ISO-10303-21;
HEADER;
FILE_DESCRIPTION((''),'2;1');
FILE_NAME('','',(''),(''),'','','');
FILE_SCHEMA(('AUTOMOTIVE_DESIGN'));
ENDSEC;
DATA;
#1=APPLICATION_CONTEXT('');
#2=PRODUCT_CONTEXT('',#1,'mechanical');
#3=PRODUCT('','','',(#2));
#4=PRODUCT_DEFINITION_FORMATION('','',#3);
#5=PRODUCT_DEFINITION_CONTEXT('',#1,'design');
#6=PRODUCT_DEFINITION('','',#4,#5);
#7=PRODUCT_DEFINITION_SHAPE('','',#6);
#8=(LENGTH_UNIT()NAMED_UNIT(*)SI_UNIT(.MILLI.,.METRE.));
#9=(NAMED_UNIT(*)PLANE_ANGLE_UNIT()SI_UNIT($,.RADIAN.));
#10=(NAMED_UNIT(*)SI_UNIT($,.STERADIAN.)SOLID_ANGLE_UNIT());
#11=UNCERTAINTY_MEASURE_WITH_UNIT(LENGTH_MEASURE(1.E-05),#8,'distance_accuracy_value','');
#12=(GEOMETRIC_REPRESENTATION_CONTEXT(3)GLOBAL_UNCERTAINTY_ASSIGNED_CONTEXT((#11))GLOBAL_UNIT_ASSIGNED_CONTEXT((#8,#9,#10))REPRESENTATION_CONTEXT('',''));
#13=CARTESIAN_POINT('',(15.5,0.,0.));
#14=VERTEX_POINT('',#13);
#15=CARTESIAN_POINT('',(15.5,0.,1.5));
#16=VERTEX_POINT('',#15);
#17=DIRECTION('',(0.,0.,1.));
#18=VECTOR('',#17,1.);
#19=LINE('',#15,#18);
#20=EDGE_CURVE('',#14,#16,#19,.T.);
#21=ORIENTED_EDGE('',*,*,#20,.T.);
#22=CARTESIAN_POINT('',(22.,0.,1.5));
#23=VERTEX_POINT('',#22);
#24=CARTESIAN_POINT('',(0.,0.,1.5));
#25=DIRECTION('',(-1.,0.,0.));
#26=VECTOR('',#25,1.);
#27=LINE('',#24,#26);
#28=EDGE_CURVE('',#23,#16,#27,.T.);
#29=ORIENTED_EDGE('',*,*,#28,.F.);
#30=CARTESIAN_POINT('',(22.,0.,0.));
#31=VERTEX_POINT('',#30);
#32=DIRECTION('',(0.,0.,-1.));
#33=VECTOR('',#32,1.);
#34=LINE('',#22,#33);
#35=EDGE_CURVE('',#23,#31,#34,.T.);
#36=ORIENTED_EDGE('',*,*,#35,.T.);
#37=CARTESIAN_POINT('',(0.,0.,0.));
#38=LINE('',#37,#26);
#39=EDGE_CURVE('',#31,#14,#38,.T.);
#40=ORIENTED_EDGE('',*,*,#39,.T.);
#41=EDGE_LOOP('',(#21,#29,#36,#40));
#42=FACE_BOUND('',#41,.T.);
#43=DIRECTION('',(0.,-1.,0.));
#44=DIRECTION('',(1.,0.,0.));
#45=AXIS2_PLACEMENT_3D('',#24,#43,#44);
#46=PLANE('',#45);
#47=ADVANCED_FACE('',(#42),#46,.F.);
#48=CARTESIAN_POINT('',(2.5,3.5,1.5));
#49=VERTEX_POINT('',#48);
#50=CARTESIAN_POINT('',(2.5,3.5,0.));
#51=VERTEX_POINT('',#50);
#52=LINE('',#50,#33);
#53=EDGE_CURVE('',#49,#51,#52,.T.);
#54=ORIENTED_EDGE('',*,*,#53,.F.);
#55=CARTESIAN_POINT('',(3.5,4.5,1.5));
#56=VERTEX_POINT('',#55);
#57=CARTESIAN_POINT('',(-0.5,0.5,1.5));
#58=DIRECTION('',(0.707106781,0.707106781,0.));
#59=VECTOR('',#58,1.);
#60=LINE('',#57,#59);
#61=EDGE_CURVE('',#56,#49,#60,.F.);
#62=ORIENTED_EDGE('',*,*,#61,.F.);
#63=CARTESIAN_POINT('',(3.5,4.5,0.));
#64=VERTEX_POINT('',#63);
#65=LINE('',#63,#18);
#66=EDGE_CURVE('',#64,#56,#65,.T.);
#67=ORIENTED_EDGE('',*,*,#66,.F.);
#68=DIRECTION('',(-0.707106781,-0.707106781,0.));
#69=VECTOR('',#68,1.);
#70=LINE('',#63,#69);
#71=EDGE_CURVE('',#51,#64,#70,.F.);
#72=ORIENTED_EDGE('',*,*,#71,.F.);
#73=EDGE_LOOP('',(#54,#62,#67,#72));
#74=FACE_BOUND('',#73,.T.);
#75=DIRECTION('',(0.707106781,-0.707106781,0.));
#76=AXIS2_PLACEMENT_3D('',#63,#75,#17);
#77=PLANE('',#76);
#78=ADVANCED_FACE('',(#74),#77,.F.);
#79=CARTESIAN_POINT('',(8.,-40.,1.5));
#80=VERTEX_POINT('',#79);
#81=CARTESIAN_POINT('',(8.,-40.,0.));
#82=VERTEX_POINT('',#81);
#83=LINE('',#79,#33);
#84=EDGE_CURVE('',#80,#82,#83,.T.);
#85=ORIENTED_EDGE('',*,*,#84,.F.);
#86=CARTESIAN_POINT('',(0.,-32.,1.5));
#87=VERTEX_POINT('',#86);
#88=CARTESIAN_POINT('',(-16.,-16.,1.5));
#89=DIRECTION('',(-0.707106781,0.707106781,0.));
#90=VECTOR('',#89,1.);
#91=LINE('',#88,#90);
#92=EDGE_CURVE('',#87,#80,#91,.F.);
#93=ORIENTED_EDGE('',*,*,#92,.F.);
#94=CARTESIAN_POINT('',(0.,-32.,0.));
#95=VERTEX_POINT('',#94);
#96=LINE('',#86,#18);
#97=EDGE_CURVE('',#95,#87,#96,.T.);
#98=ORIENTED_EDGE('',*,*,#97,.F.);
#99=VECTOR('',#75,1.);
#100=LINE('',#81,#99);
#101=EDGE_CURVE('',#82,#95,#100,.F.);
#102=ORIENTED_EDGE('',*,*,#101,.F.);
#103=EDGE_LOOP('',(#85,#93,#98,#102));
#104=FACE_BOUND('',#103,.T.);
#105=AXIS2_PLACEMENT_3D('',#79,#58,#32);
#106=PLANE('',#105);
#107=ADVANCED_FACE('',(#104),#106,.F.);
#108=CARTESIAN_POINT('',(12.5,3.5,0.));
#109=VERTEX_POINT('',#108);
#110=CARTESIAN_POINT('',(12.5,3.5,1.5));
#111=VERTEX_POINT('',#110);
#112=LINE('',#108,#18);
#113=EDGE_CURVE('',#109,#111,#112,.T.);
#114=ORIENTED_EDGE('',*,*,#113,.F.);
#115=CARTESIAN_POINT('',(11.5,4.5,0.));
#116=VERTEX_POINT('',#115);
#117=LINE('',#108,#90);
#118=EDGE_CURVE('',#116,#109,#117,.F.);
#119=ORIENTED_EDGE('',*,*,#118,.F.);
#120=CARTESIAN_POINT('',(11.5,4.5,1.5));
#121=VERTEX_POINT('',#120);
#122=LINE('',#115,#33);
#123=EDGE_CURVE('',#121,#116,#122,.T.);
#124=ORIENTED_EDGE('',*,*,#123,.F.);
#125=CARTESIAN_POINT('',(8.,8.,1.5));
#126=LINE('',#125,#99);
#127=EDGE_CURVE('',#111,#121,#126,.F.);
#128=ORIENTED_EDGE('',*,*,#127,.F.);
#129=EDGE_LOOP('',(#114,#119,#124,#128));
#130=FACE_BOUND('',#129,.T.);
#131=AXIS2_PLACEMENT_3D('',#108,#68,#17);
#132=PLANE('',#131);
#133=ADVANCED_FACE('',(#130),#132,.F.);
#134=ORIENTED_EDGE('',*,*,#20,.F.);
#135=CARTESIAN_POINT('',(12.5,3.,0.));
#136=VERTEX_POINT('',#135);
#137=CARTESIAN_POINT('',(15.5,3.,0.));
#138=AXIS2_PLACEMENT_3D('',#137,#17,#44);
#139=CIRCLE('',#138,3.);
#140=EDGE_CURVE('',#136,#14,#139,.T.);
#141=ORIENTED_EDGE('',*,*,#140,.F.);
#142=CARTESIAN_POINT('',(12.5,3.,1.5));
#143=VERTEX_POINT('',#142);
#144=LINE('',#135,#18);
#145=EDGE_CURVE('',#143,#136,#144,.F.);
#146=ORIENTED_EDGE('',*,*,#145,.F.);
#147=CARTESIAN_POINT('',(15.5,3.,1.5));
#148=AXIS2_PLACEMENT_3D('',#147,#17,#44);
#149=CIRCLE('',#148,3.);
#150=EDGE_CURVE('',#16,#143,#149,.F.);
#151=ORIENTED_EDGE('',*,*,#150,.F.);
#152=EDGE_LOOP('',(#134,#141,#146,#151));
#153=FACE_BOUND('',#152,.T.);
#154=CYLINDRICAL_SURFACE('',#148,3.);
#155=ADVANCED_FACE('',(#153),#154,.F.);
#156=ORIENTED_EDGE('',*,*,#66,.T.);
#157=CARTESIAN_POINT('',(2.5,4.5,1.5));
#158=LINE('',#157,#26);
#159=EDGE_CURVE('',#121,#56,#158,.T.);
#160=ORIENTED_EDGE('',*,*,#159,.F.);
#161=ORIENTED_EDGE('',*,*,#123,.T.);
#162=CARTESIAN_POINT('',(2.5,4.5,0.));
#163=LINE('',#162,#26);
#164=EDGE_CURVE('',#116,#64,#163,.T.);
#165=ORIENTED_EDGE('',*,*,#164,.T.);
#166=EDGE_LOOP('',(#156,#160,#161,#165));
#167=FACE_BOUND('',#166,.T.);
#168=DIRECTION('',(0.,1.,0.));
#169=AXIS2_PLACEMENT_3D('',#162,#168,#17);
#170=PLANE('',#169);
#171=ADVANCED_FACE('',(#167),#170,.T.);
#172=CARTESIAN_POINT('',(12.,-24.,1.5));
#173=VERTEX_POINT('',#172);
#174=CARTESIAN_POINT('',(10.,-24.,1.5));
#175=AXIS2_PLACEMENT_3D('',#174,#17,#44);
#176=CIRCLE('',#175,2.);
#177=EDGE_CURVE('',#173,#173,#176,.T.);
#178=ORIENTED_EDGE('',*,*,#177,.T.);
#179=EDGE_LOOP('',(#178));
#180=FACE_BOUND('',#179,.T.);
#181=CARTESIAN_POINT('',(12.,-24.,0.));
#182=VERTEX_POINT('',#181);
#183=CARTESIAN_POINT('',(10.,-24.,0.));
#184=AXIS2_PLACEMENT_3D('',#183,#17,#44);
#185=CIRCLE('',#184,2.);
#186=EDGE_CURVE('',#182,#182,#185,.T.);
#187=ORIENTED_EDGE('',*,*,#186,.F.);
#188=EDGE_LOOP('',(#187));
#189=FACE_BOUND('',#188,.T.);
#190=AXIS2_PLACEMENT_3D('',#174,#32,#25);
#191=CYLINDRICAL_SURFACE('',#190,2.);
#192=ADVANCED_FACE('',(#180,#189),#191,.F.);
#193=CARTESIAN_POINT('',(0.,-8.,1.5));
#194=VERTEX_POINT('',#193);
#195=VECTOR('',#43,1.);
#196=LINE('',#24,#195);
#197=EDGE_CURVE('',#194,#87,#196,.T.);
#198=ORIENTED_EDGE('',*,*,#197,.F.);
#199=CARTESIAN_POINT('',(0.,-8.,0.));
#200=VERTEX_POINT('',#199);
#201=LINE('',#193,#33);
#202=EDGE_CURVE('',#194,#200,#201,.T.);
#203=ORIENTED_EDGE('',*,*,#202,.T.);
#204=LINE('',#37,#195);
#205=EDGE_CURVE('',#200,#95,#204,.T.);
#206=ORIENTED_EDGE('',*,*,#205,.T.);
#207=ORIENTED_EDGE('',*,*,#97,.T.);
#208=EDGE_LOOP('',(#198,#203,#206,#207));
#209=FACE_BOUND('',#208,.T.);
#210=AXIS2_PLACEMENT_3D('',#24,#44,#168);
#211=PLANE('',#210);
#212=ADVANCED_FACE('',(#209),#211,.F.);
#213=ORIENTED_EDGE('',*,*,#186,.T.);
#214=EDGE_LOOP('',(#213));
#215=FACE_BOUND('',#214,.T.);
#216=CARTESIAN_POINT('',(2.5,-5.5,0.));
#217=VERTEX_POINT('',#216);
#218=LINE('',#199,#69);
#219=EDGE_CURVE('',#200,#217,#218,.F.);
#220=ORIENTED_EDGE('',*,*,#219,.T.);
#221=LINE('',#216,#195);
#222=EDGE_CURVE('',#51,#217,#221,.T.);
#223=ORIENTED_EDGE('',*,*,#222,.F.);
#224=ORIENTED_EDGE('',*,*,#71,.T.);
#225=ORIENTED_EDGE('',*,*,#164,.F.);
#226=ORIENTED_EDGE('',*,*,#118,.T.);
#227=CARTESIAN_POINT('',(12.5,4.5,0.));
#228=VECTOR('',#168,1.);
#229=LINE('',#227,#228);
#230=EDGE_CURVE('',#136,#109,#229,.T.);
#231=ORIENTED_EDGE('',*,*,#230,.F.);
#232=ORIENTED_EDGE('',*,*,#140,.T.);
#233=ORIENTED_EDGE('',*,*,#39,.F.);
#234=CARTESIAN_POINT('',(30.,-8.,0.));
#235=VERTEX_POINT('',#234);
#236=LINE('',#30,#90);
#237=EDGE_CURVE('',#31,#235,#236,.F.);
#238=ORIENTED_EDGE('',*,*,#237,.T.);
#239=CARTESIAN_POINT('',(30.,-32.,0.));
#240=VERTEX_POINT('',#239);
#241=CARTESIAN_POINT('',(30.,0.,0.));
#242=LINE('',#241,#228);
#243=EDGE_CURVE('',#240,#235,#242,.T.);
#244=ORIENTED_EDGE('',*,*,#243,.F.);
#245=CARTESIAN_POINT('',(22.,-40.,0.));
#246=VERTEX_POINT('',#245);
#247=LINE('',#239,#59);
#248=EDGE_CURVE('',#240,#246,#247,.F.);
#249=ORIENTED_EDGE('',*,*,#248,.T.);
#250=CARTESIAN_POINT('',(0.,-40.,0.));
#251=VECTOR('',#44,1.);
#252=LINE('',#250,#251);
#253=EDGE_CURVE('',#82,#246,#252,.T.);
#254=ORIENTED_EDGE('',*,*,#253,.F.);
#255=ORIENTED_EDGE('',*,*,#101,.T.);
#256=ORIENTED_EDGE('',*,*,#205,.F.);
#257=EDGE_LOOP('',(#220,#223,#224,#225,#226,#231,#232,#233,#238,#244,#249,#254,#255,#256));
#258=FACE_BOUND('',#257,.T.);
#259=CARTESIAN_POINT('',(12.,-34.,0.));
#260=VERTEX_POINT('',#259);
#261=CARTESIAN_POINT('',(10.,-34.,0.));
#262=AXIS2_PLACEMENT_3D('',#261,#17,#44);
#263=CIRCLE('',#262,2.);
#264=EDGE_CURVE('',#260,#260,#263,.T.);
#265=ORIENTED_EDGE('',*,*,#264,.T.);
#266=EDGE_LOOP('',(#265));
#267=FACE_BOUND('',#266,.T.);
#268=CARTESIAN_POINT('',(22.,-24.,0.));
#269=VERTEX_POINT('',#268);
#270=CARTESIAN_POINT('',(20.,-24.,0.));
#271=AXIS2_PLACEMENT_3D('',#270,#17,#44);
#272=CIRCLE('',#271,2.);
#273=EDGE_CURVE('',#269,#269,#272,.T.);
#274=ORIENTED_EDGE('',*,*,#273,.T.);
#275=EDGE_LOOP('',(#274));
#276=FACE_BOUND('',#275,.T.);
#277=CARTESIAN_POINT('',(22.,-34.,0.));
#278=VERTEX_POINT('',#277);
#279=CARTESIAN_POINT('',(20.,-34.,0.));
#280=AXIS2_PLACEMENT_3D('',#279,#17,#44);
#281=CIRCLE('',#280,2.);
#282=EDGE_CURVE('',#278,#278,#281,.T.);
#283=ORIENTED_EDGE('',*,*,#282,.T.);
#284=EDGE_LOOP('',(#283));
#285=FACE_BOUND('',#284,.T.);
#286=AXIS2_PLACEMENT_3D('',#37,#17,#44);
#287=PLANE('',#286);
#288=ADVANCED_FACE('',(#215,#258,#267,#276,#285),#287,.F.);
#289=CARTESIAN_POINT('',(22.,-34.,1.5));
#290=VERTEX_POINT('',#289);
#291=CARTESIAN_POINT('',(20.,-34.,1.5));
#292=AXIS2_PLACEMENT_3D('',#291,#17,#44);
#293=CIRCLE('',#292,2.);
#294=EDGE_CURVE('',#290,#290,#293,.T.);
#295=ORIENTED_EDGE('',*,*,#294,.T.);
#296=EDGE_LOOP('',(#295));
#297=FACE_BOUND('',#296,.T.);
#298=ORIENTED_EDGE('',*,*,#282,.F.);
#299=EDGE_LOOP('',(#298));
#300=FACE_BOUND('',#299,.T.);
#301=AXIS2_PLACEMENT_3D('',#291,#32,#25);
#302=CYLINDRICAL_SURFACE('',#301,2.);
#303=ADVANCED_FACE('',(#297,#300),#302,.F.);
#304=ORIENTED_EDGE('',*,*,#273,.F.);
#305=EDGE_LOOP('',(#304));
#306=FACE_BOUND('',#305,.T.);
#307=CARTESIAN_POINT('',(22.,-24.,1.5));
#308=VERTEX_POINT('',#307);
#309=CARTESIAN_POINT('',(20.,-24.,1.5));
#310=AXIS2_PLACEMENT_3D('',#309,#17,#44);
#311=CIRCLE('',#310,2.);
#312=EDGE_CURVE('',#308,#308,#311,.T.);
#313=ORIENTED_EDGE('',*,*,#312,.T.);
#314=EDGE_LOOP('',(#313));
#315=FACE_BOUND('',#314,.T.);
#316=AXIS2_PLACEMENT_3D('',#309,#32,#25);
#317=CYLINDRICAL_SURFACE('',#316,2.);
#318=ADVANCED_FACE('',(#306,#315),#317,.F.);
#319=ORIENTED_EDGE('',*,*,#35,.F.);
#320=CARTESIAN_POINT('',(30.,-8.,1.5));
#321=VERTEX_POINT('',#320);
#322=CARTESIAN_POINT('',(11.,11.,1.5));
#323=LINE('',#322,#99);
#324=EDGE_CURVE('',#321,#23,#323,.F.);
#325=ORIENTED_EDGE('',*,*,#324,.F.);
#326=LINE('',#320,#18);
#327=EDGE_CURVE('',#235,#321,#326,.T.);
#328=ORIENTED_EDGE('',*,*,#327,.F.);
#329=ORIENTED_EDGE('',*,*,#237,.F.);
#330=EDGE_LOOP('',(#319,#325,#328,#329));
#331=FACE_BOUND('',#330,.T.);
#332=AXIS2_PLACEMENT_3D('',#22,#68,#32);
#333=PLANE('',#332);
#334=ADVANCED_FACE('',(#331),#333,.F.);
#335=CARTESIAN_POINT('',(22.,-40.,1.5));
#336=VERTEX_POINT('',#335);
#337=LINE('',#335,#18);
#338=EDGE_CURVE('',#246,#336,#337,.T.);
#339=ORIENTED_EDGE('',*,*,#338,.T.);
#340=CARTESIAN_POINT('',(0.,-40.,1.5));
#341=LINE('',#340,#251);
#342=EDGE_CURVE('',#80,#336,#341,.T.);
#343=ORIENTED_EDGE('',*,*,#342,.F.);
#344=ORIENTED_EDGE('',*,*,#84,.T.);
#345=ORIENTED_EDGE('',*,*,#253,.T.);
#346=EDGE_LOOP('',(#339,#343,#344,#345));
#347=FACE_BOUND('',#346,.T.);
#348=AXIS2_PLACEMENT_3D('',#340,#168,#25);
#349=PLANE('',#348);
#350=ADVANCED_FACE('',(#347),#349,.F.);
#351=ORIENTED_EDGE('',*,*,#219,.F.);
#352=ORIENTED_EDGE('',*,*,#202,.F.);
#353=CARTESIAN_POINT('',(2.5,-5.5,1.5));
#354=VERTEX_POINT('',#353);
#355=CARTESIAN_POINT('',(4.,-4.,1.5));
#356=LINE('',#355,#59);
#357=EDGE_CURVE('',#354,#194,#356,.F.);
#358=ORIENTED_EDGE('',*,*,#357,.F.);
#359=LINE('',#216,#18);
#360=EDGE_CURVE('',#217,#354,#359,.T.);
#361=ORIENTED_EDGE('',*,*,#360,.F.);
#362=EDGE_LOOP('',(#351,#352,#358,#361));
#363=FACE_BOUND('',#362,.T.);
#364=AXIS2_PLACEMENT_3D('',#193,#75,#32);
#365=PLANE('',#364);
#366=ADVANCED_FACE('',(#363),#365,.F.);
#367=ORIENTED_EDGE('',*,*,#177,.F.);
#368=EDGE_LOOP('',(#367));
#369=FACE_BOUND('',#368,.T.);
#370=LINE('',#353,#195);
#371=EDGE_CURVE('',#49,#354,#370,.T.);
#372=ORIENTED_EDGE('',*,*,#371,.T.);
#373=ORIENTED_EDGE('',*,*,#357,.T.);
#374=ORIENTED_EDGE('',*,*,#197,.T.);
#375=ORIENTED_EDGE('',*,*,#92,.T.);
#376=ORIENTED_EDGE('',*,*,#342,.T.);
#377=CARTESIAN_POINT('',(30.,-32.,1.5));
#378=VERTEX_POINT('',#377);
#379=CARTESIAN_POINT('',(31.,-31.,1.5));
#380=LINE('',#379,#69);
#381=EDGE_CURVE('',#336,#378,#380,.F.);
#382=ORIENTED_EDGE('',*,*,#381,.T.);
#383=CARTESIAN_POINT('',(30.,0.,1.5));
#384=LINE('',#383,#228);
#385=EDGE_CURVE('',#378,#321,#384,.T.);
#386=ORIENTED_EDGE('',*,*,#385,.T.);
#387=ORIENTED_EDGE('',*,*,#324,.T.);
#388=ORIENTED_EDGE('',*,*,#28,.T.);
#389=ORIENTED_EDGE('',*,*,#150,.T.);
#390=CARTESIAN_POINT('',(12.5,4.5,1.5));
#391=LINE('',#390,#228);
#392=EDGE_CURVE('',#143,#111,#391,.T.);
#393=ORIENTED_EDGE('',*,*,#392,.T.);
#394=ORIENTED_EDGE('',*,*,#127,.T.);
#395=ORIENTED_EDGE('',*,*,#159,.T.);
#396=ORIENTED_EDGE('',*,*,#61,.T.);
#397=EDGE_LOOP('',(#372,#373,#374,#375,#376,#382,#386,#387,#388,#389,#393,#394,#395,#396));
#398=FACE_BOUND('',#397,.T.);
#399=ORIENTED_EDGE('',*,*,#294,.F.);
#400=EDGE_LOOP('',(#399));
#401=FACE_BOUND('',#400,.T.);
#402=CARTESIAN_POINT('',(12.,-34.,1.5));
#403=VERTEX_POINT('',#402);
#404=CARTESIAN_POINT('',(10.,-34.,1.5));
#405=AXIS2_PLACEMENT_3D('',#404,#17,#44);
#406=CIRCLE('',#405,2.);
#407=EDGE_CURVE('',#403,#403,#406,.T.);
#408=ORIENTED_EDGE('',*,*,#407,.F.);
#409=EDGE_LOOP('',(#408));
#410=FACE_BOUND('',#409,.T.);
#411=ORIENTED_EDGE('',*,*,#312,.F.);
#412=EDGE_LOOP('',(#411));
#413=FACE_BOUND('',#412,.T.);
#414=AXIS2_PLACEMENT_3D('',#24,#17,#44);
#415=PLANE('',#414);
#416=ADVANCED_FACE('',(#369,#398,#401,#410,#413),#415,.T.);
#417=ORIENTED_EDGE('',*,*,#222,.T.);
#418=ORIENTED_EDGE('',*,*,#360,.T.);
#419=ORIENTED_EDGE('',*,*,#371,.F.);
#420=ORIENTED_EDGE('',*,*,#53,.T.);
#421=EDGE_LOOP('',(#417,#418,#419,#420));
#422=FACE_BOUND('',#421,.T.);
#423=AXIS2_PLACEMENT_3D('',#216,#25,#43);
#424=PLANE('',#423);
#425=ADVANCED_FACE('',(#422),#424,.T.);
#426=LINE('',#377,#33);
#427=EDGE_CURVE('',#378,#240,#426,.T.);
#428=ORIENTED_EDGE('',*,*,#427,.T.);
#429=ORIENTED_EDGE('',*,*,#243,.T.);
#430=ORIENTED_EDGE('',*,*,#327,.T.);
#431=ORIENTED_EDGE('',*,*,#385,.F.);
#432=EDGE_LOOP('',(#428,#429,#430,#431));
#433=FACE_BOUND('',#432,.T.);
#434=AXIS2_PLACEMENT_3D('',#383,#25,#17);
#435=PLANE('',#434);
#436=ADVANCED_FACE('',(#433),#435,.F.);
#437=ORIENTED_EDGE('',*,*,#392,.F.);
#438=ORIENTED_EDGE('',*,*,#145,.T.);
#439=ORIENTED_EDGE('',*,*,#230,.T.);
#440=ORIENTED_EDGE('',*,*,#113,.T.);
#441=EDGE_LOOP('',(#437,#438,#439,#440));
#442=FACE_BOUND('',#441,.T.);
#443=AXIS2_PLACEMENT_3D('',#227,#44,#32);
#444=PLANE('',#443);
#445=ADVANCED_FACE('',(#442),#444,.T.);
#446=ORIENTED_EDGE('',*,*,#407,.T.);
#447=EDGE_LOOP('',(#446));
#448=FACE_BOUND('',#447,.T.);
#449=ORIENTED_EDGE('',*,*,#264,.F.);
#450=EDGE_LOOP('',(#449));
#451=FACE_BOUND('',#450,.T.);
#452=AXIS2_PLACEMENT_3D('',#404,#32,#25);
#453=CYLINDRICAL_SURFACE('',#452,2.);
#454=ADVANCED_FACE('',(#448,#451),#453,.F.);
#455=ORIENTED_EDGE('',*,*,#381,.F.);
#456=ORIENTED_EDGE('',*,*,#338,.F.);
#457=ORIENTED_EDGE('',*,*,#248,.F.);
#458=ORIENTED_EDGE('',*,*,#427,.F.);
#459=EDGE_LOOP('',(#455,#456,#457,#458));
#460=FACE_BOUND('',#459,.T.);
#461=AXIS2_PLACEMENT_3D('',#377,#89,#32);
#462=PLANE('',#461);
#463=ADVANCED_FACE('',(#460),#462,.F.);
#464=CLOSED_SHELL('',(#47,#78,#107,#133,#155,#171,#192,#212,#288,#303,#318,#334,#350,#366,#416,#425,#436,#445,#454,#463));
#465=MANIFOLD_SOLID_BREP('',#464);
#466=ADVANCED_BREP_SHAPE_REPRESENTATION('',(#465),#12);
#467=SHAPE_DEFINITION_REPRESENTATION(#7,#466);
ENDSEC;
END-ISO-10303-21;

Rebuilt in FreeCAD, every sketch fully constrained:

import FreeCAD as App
import Part
import Sketcher


def edges_at(feature, points):
    """Names of the edges that pass closest to the given points."""
    edges = feature.Shape.Edges
    near = lambda p: min(range(len(edges)), key=lambda i: edges[i].distToShape(Part.Vertex(*p))[0])
    return sorted({f"Edge{near(p) + 1}" for p in points})

doc = App.newDocument("Part")
body = doc.addObject("PartDesign::Body", "Body")

sketch1 = doc.addObject("Sketcher::SketchObject", "Sketch")
body.addObject(sketch1)
sketch1.AttachmentSupport = (doc.XY_Plane, [""])
sketch1.MapMode = "FlatFace"
sketch1.addGeometry([
    Part.LineSegment(App.Vector(0, 0, 0), App.Vector(0, -40, 0)),
    Part.LineSegment(App.Vector(0, -40, 0), App.Vector(30, -40, 0)),
    Part.LineSegment(App.Vector(30, -40, 0), App.Vector(30, 0, 0)),
    Part.LineSegment(App.Vector(30, 0, 0), App.Vector(0, 0, 0)),
    Part.Circle(App.Vector(10, -34, 0), App.Vector(0, 0, 1), 2),
    Part.Circle(App.Vector(20, -34, 0), App.Vector(0, 0, 1), 2),
    Part.Circle(App.Vector(10, -24, 0), App.Vector(0, 0, 1), 2),
    Part.Circle(App.Vector(20, -24, 0), App.Vector(0, 0, 1), 2),
], False)
sketch1.addConstraint([
    Sketcher.Constraint("Coincident", 0, 2, 1, 1),
    Sketcher.Constraint("Coincident", 1, 2, 2, 1),
    Sketcher.Constraint("Coincident", 2, 2, 3, 1),
    Sketcher.Constraint("Coincident", 3, 2, 0, 1),
    Sketcher.Constraint("Vertical", 0),
    Sketcher.Constraint("Horizontal", 1),
    Sketcher.Constraint("Vertical", 2),
    Sketcher.Constraint("Horizontal", 3),
    Sketcher.Constraint("Coincident", 3, 2, -1, 1),
    Sketcher.Constraint("Equal", 4, 5),
    Sketcher.Constraint("Equal", 5, 6),
    Sketcher.Constraint("Equal", 6, 7),
    Sketcher.Constraint("Horizontal", 4, 3, 5, 3),
    Sketcher.Constraint("Horizontal", 6, 3, 7, 3),
    Sketcher.Constraint("Vertical", 4, 3, 6, 3),
    Sketcher.Constraint("Vertical", 5, 3, 7, 3),
    Sketcher.Constraint("Diameter", 4, 4.0),
    Sketcher.Constraint("DistanceX", 1, 1, 1, 2, 30.0),
    Sketcher.Constraint("DistanceY", 0, 2, 0, 1, 40.0),
    Sketcher.Constraint("DistanceX", -1, 1, 4, 3, 10.0),
    Sketcher.Constraint("DistanceY", 4, 3, -1, 1, 34.0),
    Sketcher.Constraint("DistanceX", -1, 1, 5, 3, 20.0),
    Sketcher.Constraint("DistanceY", 6, 3, -1, 1, 24.0),
])
pad1 = doc.addObject("PartDesign::Pad", "Pad")
body.addObject(pad1)
pad1.Profile = sketch1
pad1.Length = 1.5
doc.recompute()

chamfer = doc.addObject("PartDesign::Chamfer", "Chamfer")
body.addObject(chamfer)
chamfer.Base = (pad1, edges_at(pad1, [
    (0, 0, 0.75),
    (30, 0, 0.75),
    (30, -40, 0.75),
    (0, -40, 0.75),
]))
chamfer.Size = 8

sketch2 = doc.addObject("Sketcher::SketchObject", "Sketch001")
body.addObject(sketch2)
sketch2.AttachmentSupport = (doc.XY_Plane, [""])
sketch2.MapMode = "FlatFace"
sketch2.AttachmentOffset = App.Placement(App.Vector(0, 0, 1.5), App.Rotation())
sketch2.addGeometry([
    Part.LineSegment(App.Vector(2, 4, 0), App.Vector(2, -6, 0)),
    Part.LineSegment(App.Vector(2, -6, 0), App.Vector(12, -6, 0)),
    Part.LineSegment(App.Vector(12, -6, 0), App.Vector(12, 4, 0)),
    Part.LineSegment(App.Vector(12, 4, 0), App.Vector(2, 4, 0)),
], False)
sketch2.addConstraint([
    Sketcher.Constraint("Coincident", 0, 2, 1, 1),
    Sketcher.Constraint("Coincident", 1, 2, 2, 1),
    Sketcher.Constraint("Coincident", 2, 2, 3, 1),
    Sketcher.Constraint("Coincident", 3, 2, 0, 1),
    Sketcher.Constraint("Vertical", 0),
    Sketcher.Constraint("Horizontal", 1),
    Sketcher.Constraint("Vertical", 2),
    Sketcher.Constraint("Horizontal", 3),
    Sketcher.Constraint("Equal", 3, 0),
    Sketcher.Constraint("DistanceX", 1, 1, 1, 2, 10.0),
    Sketcher.Constraint("DistanceX", -1, 1, 0, 2, 2.5),
    Sketcher.Constraint("DistanceY", 0, 2, -1, 1, 5.5),
])
pad2 = doc.addObject("PartDesign::Pad", "Pad001")
body.addObject(pad2)
pad2.Profile = sketch2
pad2.Length = 1.5
pad2.Reversed = True
doc.recompute()

chamfer2 = doc.addObject("PartDesign::Chamfer", "Chamfer001")
body.addObject(chamfer2)
chamfer2.Base = (pad2, edges_at(pad2, [(12.5, 4.5, 0.75), (2.5, 4.5, 0.75)]))
chamfer2.Size = 1
doc.recompute()

fillet = doc.addObject("PartDesign::Fillet", "Fillet")
body.addObject(fillet)
fillet.Base = (chamfer2, edges_at(chamfer2, [(12.5, 0, 0.75)]))
fillet.Radius = 3

doc.recompute()
